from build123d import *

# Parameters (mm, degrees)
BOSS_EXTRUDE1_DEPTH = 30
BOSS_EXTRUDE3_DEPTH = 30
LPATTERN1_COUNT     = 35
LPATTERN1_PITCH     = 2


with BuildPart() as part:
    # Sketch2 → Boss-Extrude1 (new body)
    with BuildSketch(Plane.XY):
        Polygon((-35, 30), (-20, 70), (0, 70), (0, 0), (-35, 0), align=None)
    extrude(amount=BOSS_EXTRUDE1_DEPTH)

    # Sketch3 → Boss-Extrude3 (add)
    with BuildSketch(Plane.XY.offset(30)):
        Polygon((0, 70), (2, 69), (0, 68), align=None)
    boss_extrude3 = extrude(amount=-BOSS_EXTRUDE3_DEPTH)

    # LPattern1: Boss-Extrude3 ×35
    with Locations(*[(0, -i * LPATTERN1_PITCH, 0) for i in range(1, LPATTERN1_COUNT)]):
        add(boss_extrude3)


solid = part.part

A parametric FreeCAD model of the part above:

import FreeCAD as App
import Part
import Sketcher

doc = App.newDocument("Part")
params = doc.addObject("Spreadsheet::Sheet", "Params")
for row, (alias, value) in enumerate([
    ("sketch1_width", "35 mm"),
    ("sketch1_width2", "20 mm"),
    ("sketch1_height", "30 mm"),
    ("sketch1_height2", "70 mm"),
    ("pad1_length", "30 mm"),
    ("sketch2_height", "2 mm"),
    ("pad2_length", "30 mm"),
    ("linearpattern_pitch", "2 mm"),
], start=1):
    params.set(f"A{row}", alias)
    params.set(f"B{row}", "=" + value)
    params.setAlias(f"B{row}", alias)

body = doc.addObject("PartDesign::Body", "Body")

# Sketch on XY plane
sketch1 = doc.addObject("Sketcher::SketchObject", "Sketch")
body.addObject(sketch1)
sketch1.AttachmentSupport = (doc.XY_Plane, [""])
sketch1.MapMode = "FlatFace"
sketch1.addGeometry([
    Part.LineSegment(App.Vector(-20, 70, 0), App.Vector(-35, 30, 0)),  # 0
    Part.LineSegment(App.Vector(-35, 30, 0), App.Vector(-35, 0, 0)),  # 1
    Part.LineSegment(App.Vector(-35, 0, 0), App.Vector(0, 0, 0)),  # 2
    Part.LineSegment(App.Vector(0, 0, 0), App.Vector(0, 70, 0)),  # 3
    Part.LineSegment(App.Vector(0, 70, 0), App.Vector(-20, 70, 0)),  # 4
], False)
sketch1.addConstraint([
    Sketcher.Constraint("Coincident", 0, 2, 1, 1),
    Sketcher.Constraint("Coincident", 1, 2, 2, 1),
    Sketcher.Constraint("Coincident", 2, 2, 3, 1),
    Sketcher.Constraint("Coincident", 3, 2, 4, 1),
    Sketcher.Constraint("Coincident", 4, 2, 0, 1),
    Sketcher.Constraint("Vertical", 1),
    Sketcher.Constraint("Horizontal", 2),
    Sketcher.Constraint("Vertical", 3),
    Sketcher.Constraint("Horizontal", 4),
    Sketcher.Constraint("Coincident", 2, 2, -1, 1),
    Sketcher.Constraint("DistanceX", 2, 1, 2, 2, 35.0),
    Sketcher.Constraint("DistanceX", 4, 2, 4, 1, 20.0),
    Sketcher.Constraint("DistanceY", 1, 2, 1, 1, 30.0),
    Sketcher.Constraint("DistanceY", 3, 1, 3, 2, 70.0),
])
sketch1.setExpression("Constraints[10]", "Params.sketch1_width")
sketch1.setExpression("Constraints[11]", "Params.sketch1_width2")
sketch1.setExpression("Constraints[12]", "Params.sketch1_height")
sketch1.setExpression("Constraints[13]", "Params.sketch1_height2")
pad1 = doc.addObject("PartDesign::Pad", "Pad")
body.addObject(pad1)
pad1.Profile = sketch1
pad1.setExpression("Length", "Params.pad1_length")

# Sketch on XY plane
sketch2 = doc.addObject("Sketcher::SketchObject", "Sketch001")
body.addObject(sketch2)
sketch2.AttachmentSupport = (doc.XY_Plane, [""])
sketch2.MapMode = "FlatFace"
sketch2.AttachmentOffset = App.Placement(App.Vector(0, 0, 30), App.Rotation())
sketch2.addGeometry([
    Part.LineSegment(App.Vector(2, 69, 0), App.Vector(0, 70, 0)),
    Part.LineSegment(App.Vector(0, 70, 0), App.Vector(0, 68, 0)),
    Part.LineSegment(App.Vector(0, 68, 0), App.Vector(2, 69, 0)),
], False)
sketch2.addConstraint([
    Sketcher.Constraint("Coincident", 0, 2, 1, 1),
    Sketcher.Constraint("Coincident", 1, 2, 2, 1),
    Sketcher.Constraint("Coincident", 2, 2, 0, 1),
    Sketcher.Constraint("Vertical", 1),
    Sketcher.Constraint("PointOnObject", 0, 2, -2),
    Sketcher.Constraint("Equal", 0, 2),
    Sketcher.Constraint("DistanceY", 1, 2, 1, 1, 2.0),
    Sketcher.Constraint("DistanceY", -1, 1, 0, 2, 70.0),
    Sketcher.Constraint("DistanceX", -1, 1, 2, 2, 2.0),
])
sketch2.setExpression("Constraints[6]", "Params.sketch2_height")
pad2 = doc.addObject("PartDesign::Pad", "Pad001")
body.addObject(pad2)
pad2.Profile = sketch2
pad2.setExpression("Length", "Params.pad2_length")
pad2.Reversed = True
doc.recompute()

linearpattern = doc.addObject("PartDesign::LinearPattern", "LinearPattern")
body.addObject(linearpattern)
linearpattern.Originals = [pad2]
linearpattern.Direction = (doc.Y_Axis, [""])
linearpattern.Mode = "offset"
linearpattern.setExpression("Offset", "Params.linearpattern_pitch")
linearpattern.Occurrences = 35
linearpattern.Reversed = True
body.Tip = linearpattern

doc.recompute()
